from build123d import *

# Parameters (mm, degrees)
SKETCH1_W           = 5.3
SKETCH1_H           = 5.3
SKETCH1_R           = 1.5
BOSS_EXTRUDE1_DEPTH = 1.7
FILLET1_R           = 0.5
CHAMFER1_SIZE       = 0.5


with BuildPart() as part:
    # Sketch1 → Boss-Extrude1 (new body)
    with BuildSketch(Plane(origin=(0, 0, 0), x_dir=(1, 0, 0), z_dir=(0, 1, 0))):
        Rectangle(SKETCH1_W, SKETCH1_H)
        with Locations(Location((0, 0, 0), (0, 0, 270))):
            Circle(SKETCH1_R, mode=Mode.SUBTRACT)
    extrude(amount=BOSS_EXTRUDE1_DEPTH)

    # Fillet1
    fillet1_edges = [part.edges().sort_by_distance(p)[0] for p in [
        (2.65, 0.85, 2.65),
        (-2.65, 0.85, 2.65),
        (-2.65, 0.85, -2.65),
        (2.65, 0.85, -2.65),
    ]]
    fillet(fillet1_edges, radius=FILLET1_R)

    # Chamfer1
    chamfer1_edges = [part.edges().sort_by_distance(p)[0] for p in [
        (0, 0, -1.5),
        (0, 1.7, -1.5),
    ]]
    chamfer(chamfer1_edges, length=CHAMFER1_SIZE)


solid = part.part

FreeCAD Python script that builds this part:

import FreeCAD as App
import Part
import Sketcher

V = App.Vector


def edges_at(feature, points):
    """Names of the edges that pass closest to the given points."""
    edges = feature.Shape.Edges
    near = lambda p: min(range(len(edges)), key=lambda i: edges[i].distToShape(Part.Vertex(*p))[0])
    return sorted({f"Edge{near(p) + 1}" for p in points})

doc = App.newDocument("Part")
body = doc.addObject("PartDesign::Body", "Body")

# Sketch on XZ plane
sketch1 = body.newObject("Sketcher::SketchObject", "Sketch")
sketch1.AttachmentSupport = (doc.getObject("XZ_Plane"), [""])
sketch1.MapMode = "FlatFace"
sketch1.addGeometry([
    Part.LineSegment(V(-2.6, -2.6, 0), V(-2.6, 2.6, 0)),  # 0
    Part.LineSegment(V(-2.6, 2.6, 0), V(2.6, 2.6, 0)),  # 1
    Part.LineSegment(V(2.6, 2.6, 0), V(2.6, -2.6, 0)),  # 2
    Part.LineSegment(V(2.6, -2.6, 0), V(-2.6, -2.6, 0)),  # 3
    Part.Circle(V(0, 0, 0), V(0, 0, 1), 1.5),  # 4
], False)
sketch1.addConstraint([
    Sketcher.Constraint("Coincident", 0, 2, 1, 1),
    Sketcher.Constraint("Coincident", 1, 2, 2, 1),
    Sketcher.Constraint("Coincident", 2, 2, 3, 1),
    Sketcher.Constraint("Coincident", 3, 2, 0, 1),
    Sketcher.Constraint("Vertical", 0),
    Sketcher.Constraint("Horizontal", 1),
    Sketcher.Constraint("Vertical", 2),
    Sketcher.Constraint("Horizontal", 3),
    Sketcher.Constraint("Coincident", 4, 3, -1, 1),
    Sketcher.Constraint("Symmetric", 0, 2, 2, 2, -1, 1),
    Sketcher.Constraint("Equal", 3, 0),
    Sketcher.Constraint("Diameter", 4, 3.0),
    Sketcher.Constraint("DistanceX", 1, 1, 1, 2, 5.3),
])
pad1 = body.newObject("PartDesign::Pad", "Pad")
pad1.Profile = sketch1
pad1.Length = 1.7
pad1.Reversed = True
doc.recompute()

fillet = body.newObject("PartDesign::Fillet", "Fillet")
fillet.Base = (pad1, edges_at(pad1, [
    (2.65, 0.85, 2.65),
    (-2.65, 0.85, 2.65),
    (-2.65, 0.85, -2.65),
    (2.65, 0.85, -2.65),
]))
fillet.Radius = 0.5
doc.recompute()

chamfer = body.newObject("PartDesign::Chamfer", "Chamfer")
chamfer.Base = (fillet, edges_at(fillet, [(0, 0, -1.5), (0, 1.7, -1.5)]))
chamfer.Size = 0.5

doc.recompute()
